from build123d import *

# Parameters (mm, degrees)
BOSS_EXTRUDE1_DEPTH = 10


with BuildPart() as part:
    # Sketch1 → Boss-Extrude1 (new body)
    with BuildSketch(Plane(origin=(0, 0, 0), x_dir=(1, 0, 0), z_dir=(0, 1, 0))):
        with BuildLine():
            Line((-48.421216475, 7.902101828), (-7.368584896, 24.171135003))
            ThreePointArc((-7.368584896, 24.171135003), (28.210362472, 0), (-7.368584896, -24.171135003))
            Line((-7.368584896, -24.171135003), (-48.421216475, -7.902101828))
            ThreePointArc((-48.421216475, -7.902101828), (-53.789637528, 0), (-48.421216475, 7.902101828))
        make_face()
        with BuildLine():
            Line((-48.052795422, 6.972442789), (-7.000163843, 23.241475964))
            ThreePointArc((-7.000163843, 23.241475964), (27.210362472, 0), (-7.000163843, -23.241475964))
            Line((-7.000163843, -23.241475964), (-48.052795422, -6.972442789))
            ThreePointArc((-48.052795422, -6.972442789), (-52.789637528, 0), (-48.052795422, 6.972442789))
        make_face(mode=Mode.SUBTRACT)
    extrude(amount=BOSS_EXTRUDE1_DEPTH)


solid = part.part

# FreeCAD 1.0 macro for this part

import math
import FreeCAD as App
import Part
import Sketcher

V = App.Vector
Q = App.Units.Quantity

doc = App.newDocument("Part")
body = doc.addObject("PartDesign::Body", "Body")

# Sketch on XZ plane
sketch1 = body.newObject("Sketcher::SketchObject", "Sketch")
sketch1.AttachmentSupport = (doc.getObject("XZ_Plane"), [""])
sketch1.MapMode = "FlatFace"
sketch1.addGeometry([
    Part.LineSegment(V(-7, -24, 0), V(-48, -8, 0)),  # 0
    Part.ArcOfCircle(Part.Circle(V(-45, 0, 0), V(0, 0, 1), 8), math.radians(112), math.radians(248)),  # 1
    Part.LineSegment(V(-48, 8, 0), V(-7, 24, 0)),  # 2
    Part.ArcOfCircle(Part.Circle(V(2, 0, 0), V(0, 0, 1), 26), math.radians(-112), math.radians(112)),  # 3
    Part.LineSegment(V(-48, -7, 0), V(-7, -23, 0)),  # 4
    Part.ArcOfCircle(Part.Circle(V(2, 0, 0), V(0, 0, 1), 25), math.radians(-112), math.radians(112)),  # 5
    Part.LineSegment(V(-7, 23, 0), V(-48, 7, 0)),  # 6
    Part.ArcOfCircle(Part.Circle(V(-45, 0, 0), V(0, 0, 1), 7), math.radians(112), math.radians(248)),  # 7
], False)
sketch1.addConstraint([
    Sketcher.Constraint("Tangent", 0, 2, 1, 2),
    Sketcher.Constraint("Tangent", 1, 1, 2, 1),
    Sketcher.Constraint("Tangent", 2, 2, 3, 2),
    Sketcher.Constraint("Tangent", 3, 1, 0, 1),
    Sketcher.Constraint("Tangent", 4, 2, 5, 1),
    Sketcher.Constraint("Tangent", 5, 2, 6, 1),
    Sketcher.Constraint("Tangent", 6, 2, 7, 1),
    Sketcher.Constraint("Tangent", 7, 2, 4, 1),
    Sketcher.Constraint("Coincident", 5, 3, 3, 3),
    Sketcher.Constraint("Coincident", 7, 3, 1, 3),
    Sketcher.Constraint("Symmetric", 0, 2, 1, 1, -1),
    Sketcher.Constraint("Parallel", 0, 4),
    Sketcher.Constraint("Radius", 3, Q("26 mm")),
    Sketcher.Constraint("Radius", 5, Q("25 mm")),
    Sketcher.Constraint("Radius", 1, Q("8.5 mm")),
    Sketcher.Constraint("DistanceX", 1, 3, 3, 3, Q("47.5 mm")),
    Sketcher.Constraint("DistanceX", 1, 3, -1, 1, Q("45.289638 mm")),
])
pad1 = body.newObject("PartDesign::Pad", "Pad")
pad1.Profile = sketch1
pad1.Length = 10
pad1.Reversed = True

doc.recompute()
